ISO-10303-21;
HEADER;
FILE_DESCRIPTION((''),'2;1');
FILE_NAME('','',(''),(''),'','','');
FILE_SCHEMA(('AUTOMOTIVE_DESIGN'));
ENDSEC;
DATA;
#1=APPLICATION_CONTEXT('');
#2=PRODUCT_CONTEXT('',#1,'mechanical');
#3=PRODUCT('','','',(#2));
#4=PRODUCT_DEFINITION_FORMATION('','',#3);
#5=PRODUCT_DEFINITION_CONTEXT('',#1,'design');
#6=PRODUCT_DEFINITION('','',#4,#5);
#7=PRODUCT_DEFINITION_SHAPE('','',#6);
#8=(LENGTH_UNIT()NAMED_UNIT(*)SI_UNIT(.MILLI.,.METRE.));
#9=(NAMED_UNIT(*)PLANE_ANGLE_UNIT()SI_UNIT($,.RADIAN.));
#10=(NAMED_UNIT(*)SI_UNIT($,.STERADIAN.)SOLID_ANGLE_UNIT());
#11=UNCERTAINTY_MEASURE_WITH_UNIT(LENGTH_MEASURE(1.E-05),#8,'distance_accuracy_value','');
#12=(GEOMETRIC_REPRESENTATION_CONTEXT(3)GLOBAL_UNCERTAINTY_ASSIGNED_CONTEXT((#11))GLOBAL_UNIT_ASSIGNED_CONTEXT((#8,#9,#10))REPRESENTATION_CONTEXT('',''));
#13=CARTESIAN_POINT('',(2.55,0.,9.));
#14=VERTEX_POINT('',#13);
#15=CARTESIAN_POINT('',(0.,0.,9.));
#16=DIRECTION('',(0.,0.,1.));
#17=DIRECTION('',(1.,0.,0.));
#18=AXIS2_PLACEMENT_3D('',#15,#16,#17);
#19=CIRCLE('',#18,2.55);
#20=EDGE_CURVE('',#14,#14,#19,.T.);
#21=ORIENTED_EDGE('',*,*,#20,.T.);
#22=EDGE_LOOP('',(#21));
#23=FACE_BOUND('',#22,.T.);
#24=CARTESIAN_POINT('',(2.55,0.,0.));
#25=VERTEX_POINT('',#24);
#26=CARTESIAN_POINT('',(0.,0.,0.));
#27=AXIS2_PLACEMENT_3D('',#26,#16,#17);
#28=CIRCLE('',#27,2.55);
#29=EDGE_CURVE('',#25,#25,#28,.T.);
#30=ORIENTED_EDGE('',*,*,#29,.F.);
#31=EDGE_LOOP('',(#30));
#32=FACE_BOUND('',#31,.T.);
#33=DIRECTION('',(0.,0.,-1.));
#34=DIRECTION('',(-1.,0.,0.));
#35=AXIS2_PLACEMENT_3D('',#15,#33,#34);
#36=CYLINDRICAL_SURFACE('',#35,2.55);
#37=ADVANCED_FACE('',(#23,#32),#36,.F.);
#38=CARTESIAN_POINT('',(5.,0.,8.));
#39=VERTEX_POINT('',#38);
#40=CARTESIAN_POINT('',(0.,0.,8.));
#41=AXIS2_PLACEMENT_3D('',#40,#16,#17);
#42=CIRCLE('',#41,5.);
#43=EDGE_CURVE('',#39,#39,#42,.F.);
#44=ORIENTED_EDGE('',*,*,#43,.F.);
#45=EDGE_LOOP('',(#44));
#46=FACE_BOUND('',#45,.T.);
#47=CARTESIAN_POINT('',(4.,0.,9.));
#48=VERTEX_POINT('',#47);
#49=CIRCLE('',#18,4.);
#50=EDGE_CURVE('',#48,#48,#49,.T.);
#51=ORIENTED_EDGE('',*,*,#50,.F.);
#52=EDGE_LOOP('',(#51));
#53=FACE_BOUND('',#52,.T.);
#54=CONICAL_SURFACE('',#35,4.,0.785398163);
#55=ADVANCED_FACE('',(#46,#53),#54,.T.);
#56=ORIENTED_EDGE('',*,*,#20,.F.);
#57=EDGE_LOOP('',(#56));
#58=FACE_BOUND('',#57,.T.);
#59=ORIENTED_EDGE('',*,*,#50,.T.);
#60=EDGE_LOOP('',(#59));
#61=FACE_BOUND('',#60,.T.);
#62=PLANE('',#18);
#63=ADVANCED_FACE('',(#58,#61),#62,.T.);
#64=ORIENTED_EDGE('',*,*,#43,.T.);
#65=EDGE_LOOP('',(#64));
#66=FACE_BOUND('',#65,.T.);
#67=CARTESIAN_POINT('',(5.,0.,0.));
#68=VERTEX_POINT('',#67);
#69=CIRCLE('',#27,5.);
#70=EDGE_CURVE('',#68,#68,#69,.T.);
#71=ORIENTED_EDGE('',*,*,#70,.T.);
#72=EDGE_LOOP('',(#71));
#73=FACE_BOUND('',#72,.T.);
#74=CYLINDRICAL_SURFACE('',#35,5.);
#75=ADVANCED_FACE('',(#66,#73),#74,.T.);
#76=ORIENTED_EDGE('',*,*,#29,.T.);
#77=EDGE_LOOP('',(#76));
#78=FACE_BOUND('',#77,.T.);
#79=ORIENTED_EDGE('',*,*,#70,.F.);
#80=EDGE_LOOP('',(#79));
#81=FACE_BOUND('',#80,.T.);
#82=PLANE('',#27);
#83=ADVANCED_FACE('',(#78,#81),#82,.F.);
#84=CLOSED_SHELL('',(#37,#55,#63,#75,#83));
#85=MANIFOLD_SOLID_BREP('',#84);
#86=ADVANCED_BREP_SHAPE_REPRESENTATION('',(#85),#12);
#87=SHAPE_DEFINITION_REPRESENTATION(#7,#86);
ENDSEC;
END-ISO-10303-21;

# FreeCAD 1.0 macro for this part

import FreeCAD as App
import Part
import Sketcher


def edges_at(feature, points):
    """Names of the edges that pass closest to the given points."""
    edges = feature.Shape.Edges
    near = lambda p: min(range(len(edges)), key=lambda i: edges[i].distToShape(Part.Vertex(*p))[0])
    return sorted({f"Edge{near(p) + 1}" for p in points})

doc = App.newDocument("Part")
body = doc.addObject("PartDesign::Body", "Body")

# Sketch on XY plane
sketch1 = body.newObject("Sketcher::SketchObject", "Sketch")
sketch1.AttachmentSupport = (doc.getObject("XY_Plane"), [""])
sketch1.MapMode = "FlatFace"
sketch1.addGeometry([
    Part.Circle(App.Vector(0, 0, 0), App.Vector(0, 0, 1), 5),
    Part.Circle(App.Vector(0, 0, 0), App.Vector(0, 0, 1), 2.5),
], False)
sketch1.addConstraint([
    Sketcher.Constraint("Coincident", 0, 3, -1, 1),
    Sketcher.Constraint("Coincident", 1, 3, -1, 1),
    Sketcher.Constraint("Diameter", 0, 10.0),
    Sketcher.Constraint("Diameter", 1, 5.1),
])
pad1 = body.newObject("PartDesign::Pad", "Pad")
pad1.Profile = sketch1
pad1.Length = 9
doc.recompute()

chamfer = body.newObject("PartDesign::Chamfer", "Chamfer")
chamfer.Base = (pad1, edges_at(pad1, [(-5, 0, 9)]))
chamfer.Size = 1

doc.recompute()
